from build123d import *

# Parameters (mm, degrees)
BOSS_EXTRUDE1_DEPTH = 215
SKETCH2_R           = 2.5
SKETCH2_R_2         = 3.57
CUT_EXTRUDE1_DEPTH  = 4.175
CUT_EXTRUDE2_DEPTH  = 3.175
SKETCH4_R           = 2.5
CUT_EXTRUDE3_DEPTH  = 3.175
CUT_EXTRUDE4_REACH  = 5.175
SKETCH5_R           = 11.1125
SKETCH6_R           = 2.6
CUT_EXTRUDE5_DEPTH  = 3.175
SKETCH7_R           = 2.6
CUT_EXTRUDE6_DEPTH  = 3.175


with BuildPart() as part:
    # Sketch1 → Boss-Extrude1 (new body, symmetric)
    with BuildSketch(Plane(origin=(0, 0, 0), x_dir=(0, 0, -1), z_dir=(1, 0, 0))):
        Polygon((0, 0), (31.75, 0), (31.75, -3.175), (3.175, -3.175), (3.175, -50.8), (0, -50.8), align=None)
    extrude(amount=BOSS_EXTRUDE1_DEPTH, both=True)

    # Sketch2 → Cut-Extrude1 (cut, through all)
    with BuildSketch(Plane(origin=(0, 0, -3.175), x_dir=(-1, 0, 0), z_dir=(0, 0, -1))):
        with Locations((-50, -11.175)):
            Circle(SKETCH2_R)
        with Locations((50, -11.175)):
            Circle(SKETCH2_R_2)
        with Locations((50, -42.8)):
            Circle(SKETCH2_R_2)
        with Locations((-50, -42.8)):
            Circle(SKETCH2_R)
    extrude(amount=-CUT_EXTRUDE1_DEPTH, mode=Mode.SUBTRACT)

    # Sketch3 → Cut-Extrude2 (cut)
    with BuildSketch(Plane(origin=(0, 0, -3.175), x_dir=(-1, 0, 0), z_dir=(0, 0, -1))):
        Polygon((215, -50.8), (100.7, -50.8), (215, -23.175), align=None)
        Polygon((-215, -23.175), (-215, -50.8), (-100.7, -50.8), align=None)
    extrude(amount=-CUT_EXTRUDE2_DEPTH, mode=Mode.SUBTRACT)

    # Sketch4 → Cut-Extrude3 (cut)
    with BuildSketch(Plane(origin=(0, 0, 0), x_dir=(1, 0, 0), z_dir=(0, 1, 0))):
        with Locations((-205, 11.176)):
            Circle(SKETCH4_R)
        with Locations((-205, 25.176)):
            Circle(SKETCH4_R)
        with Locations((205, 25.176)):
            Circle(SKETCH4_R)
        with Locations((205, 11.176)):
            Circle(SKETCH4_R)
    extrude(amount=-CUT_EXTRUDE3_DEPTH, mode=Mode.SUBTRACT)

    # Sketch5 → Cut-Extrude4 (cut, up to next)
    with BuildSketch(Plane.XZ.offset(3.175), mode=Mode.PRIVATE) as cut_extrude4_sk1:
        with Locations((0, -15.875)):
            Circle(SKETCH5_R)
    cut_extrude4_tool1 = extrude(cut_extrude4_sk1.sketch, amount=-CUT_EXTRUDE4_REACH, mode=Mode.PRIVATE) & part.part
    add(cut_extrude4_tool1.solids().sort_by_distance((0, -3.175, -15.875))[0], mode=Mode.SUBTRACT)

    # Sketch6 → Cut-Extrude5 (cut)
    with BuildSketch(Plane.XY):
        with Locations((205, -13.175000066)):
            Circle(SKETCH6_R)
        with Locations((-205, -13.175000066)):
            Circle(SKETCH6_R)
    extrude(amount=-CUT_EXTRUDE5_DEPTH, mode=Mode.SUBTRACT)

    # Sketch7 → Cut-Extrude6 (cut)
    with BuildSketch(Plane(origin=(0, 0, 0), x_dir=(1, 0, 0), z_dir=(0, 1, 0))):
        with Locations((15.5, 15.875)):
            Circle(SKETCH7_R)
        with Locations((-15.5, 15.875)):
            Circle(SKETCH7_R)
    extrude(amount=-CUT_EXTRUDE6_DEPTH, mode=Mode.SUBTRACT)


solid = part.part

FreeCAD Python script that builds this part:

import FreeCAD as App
import Part
import Sketcher
Q = App.Units.Quantity

doc = App.newDocument("Part")
params = doc.addObject("Spreadsheet::Sheet", "Params")
for row, (alias, value) in enumerate([
    ("sketch1_width", "2 in"),
    ("sketch1_height", "1.25 in"),
    ("sketch1_width2", "1.875 in"),
    ("pad1_length", "430 mm"),
    ("sketch3_width", "4.5 in"),
    ("pocket2_length", "0.125 in"),
    ("pocket3_length", "0.125 in"),
    ("sketch5_diameter", "0.875 in"),
    ("pocket5_length", "0.125 in"),
    ("pocket6_length", "0.125 in"),
], start=1):
    params.set(f"A{row}", alias)
    params.set(f"B{row}", "=" + value)
    params.setAlias(f"B{row}", alias)

body = doc.addObject("PartDesign::Body", "Body")

sketch1 = body.newObject("Sketcher::SketchObject", "Sketch")
sketch1.AttachmentSupport = (doc.getObject("YZ_Plane"), [""])
sketch1.MapMode = "FlatFace"
sketch1.addGeometry([
    Part.LineSegment(App.Vector(0, -31.8, 0), App.Vector(0, 0, 0)),
    Part.LineSegment(App.Vector(0, 0, 0), App.Vector(-50.8, 0, 0)),
    Part.LineSegment(App.Vector(-50.8, 0, 0), App.Vector(-50.8, -3.2, 0)),
    Part.LineSegment(App.Vector(-50.8, -3.2, 0), App.Vector(-3.2, -3.2, 0)),
    Part.LineSegment(App.Vector(-3.2, -3.2, 0), App.Vector(-3.2, -31.8, 0)),
    Part.LineSegment(App.Vector(-3.2, -31.8, 0), App.Vector(0, -31.8, 0)),
], False)
sketch1.addConstraint([
    Sketcher.Constraint("Coincident", 0, 2, 1, 1),
    Sketcher.Constraint("Coincident", 1, 2, 2, 1),
    Sketcher.Constraint("Coincident", 2, 2, 3, 1),
    Sketcher.Constraint("Coincident", 3, 2, 4, 1),
    Sketcher.Constraint("Coincident", 4, 2, 5, 1),
    Sketcher.Constraint("Coincident", 5, 2, 0, 1),
    Sketcher.Constraint("Vertical", 0),
    Sketcher.Constraint("Horizontal", 1),
    Sketcher.Constraint("Vertical", 2),
    Sketcher.Constraint("Horizontal", 3),
    Sketcher.Constraint("Vertical", 4),
    Sketcher.Constraint("Horizontal", 5),
    Sketcher.Constraint("Coincident", 0, 2, -1, 1),
    Sketcher.Constraint("Equal", 5, 2),
    Sketcher.Constraint("DistanceX", 1, 2, 1, 1, Q("2 in")),
    Sketcher.Constraint("DistanceY", 0, 1, 0, 2, Q("1.25 in")),
    Sketcher.Constraint("DistanceX", 3, 1, 3, 2, Q("1.875 in")),
])
sketch1.setExpression("Constraints[14]", "Params.sketch1_width")
sketch1.setExpression("Constraints[15]", "Params.sketch1_height")
sketch1.setExpression("Constraints[16]", "Params.sketch1_width2")
pad1 = body.newObject("PartDesign::Pad", "Pad")
pad1.Profile = sketch1
pad1.setExpression("Length", "Params.pad1_length")
pad1.Midplane = True

sketch2 = body.newObject("Sketcher::SketchObject", "Sketch001")
sketch2.AttachmentSupport = (doc.getObject("XY_Plane"), [""])
sketch2.MapMode = "FlatFace"
sketch2.AttachmentOffset = App.Placement(App.Vector(0, 0, -0.125 * 25.4), App.Rotation())
sketch2.addGeometry([
    Part.Circle(App.Vector(50, -11.2, 0), App.Vector(0, 0, 1), 2.5),
    Part.Circle(App.Vector(-50, -11.2, 0), App.Vector(0, 0, 1), 3.6),
    Part.Circle(App.Vector(-50, -42.8, 0), App.Vector(0, 0, 1), 3.6),
    Part.Circle(App.Vector(50, -42.8, 0), App.Vector(0, 0, 1), 2.5),
], False)
sketch2.addConstraint([
    Sketcher.Constraint("Equal", 1, 2),
    Sketcher.Constraint("Equal", 0, 3),
    Sketcher.Constraint("Symmetric", 0, 3, 1, 3, -2),
    Sketcher.Constraint("Symmetric", 2, 3, 3, 3, -2),
    Sketcher.Constraint("Vertical", 1, 3, 2, 3),
    Sketcher.Constraint("Diameter", 0, Q("5 mm")),
    Sketcher.Constraint("Diameter", 1, Q("7.14 mm")),
    Sketcher.Constraint("DistanceX", -1, 1, 0, 3, Q("50 mm")),
    Sketcher.Constraint("DistanceY", 0, 3, -1, 1, Q("11.175 mm")),
    Sketcher.Constraint("DistanceY", 2, 3, -1, 1, Q("42.8 mm")),
])
pocket1 = body.newObject("PartDesign::Pocket", "Pocket")
pocket1.Profile = sketch2
pocket1.Type = "ThroughAll"
pocket1.Reversed = True

sketch3 = body.newObject("Sketcher::SketchObject", "Sketch002")
sketch3.AttachmentSupport = (doc.getObject("XY_Plane"), [""])
sketch3.MapMode = "FlatFace"
sketch3.AttachmentOffset = App.Placement(App.Vector(0, 0, -0.125 * 25.4), App.Rotation())
sketch3.addGeometry([
    Part.LineSegment(App.Vector(-101, -51, 0), App.Vector(-215, -51, 0)),
    Part.LineSegment(App.Vector(-215, -51, 0), App.Vector(-215, -23, 0)),
    Part.LineSegment(App.Vector(-215, -23, 0), App.Vector(-101, -51, 0)),
    Part.LineSegment(App.Vector(215, -23, 0), App.Vector(215, -51, 0)),
    Part.LineSegment(App.Vector(215, -51, 0), App.Vector(101, -51, 0)),
    Part.LineSegment(App.Vector(101, -51, 0), App.Vector(215, -23, 0)),
], False)
sketch3.addConstraint([
    Sketcher.Constraint("Coincident", 0, 2, 1, 1),
    Sketcher.Constraint("Coincident", 1, 2, 2, 1),
    Sketcher.Constraint("Coincident", 2, 2, 0, 1),
    Sketcher.Constraint("Coincident", 3, 2, 4, 1),
    Sketcher.Constraint("Coincident", 4, 2, 5, 1),
    Sketcher.Constraint("Coincident", 5, 2, 3, 1),
    Sketcher.Constraint("Horizontal", 0),
    Sketcher.Constraint("Vertical", 1),
    Sketcher.Constraint("Vertical", 3),
    Sketcher.Constraint("Horizontal", 4),
    Sketcher.Constraint("Symmetric", 0, 2, 3, 2, -2),
    Sketcher.Constraint("Horizontal", 1, 2, 5, 2),
    Sketcher.Constraint("Equal", 0, 4),
    Sketcher.Constraint("DistanceX", 0, 2, 0, 1, Q("4.5 in")),
    Sketcher.Constraint("DistanceY", 0, 2, -1, 1, Q("2 in")),
    Sketcher.Constraint("DistanceY", 1, 1, 1, 2, Q("27.625 mm")),
    Sketcher.Constraint("DistanceX", 0, 2, -1, 1, Q("215 mm")),
])
sketch3.setExpression("Constraints[13]", "Params.sketch3_width")
pocket2 = body.newObject("PartDesign::Pocket", "Pocket001")
pocket2.Profile = sketch3
pocket2.setExpression("Length", "Params.pocket2_length")
pocket2.Reversed = True

sketch4 = body.newObject("Sketcher::SketchObject", "Sketch003")
sketch4.AttachmentSupport = (doc.getObject("XZ_Plane"), [""])
sketch4.MapMode = "FlatFace"
sketch4.addGeometry([
    Part.Circle(App.Vector(-205, -11.2, 0), App.Vector(0, 0, 1), 2.5),
    Part.Circle(App.Vector(-205, -25.2, 0), App.Vector(0, 0, 1), 2.5),
    Part.Circle(App.Vector(205, -25.2, 0), App.Vector(0, 0, 1), 2.5),
    Part.Circle(App.Vector(205, -11.2, 0), App.Vector(0, 0, 1), 2.5),
], False)
sketch4.addConstraint([
    Sketcher.Constraint("Equal", 0, 1),
    Sketcher.Constraint("Equal", 1, 2),
    Sketcher.Constraint("Equal", 2, 3),
    Sketcher.Constraint("Symmetric", 1, 3, 2, 3, -2),
    Sketcher.Constraint("Symmetric", 0, 3, 3, 3, -2),
    Sketcher.Constraint("Vertical", 0, 3, 1, 3),
    Sketcher.Constraint("Diameter", 0, Q("5 mm")),
    Sketcher.Constraint("DistanceY", 0, 3, -1, 1, Q("0.44 in")),
    Sketcher.Constraint("DistanceX", 0, 3, -1, 1, Q("205 mm")),
    Sketcher.Constraint("DistanceY", 1, 3, -1, 1, Q("25.176 mm")),
])
pocket3 = body.newObject("PartDesign::Pocket", "Pocket002")
pocket3.Profile = sketch4
pocket3.setExpression("Length", "Params.pocket3_length")
pocket3.Reversed = True

sketch5 = body.newObject("Sketcher::SketchObject", "Sketch004")
sketch5.AttachmentSupport = (doc.getObject("XZ_Plane"), [""])
sketch5.MapMode = "FlatFace"
sketch5.AttachmentOffset = App.Placement(App.Vector(0, 0, 0.125 * 25.4), App.Rotation())
sketch5.addGeometry(Part.Circle(App.Vector(0, -16, 0), App.Vector(0, 0, 1), 11), False)
sketch5.addConstraint([
    Sketcher.Constraint("PointOnObject", 0, 3, -2),
    Sketcher.Constraint("Diameter", 0, Q("0.875 in")),
    Sketcher.Constraint("DistanceY", 0, 3, -1, 1, Q("0.625 in")),
])
sketch5.setExpression("Constraints[1]", "Params.sketch5_diameter")
pocket4 = body.newObject("PartDesign::Pocket", "Pocket003")
pocket4.Profile = sketch5
pocket4.Type = "UpToFirst"

sketch6 = body.newObject("Sketcher::SketchObject", "Sketch005")
sketch6.AttachmentSupport = (doc.getObject("XY_Plane"), [""])
sketch6.MapMode = "FlatFace"
sketch6.addGeometry([
    Part.Circle(App.Vector(205, -13.2, 0), App.Vector(0, 0, 1), 2.6),
    Part.Circle(App.Vector(-205, -13.2, 0), App.Vector(0, 0, 1), 2.6),
], False)
sketch6.addConstraint([
    Sketcher.Constraint("Equal", 0, 1),
    Sketcher.Constraint("Symmetric", 0, 3, 1, 3, -2),
    Sketcher.Constraint("Diameter", 0, Q("5.2 mm")),
    Sketcher.Constraint("DistanceX", -1, 1, 0, 3, Q("205 mm")),
    Sketcher.Constraint("DistanceY", 0, 3, -1, 1, Q("13.175 mm")),
])
pocket5 = body.newObject("PartDesign::Pocket", "Pocket004")
pocket5.Profile = sketch6
pocket5.setExpression("Length", "Params.pocket5_length")

sketch7 = body.newObject("Sketcher::SketchObject", "Sketch006")
sketch7.AttachmentSupport = (doc.getObject("XZ_Plane"), [""])
sketch7.MapMode = "FlatFace"
sketch7.addGeometry([
    Part.Circle(App.Vector(15.5, -15.9, 0), App.Vector(0, 0, 1), 2.6),
    Part.Circle(App.Vector(-15.5, -15.9, 0), App.Vector(0, 0, 1), 2.6),
], False)
sketch7.addConstraint([
    Sketcher.Constraint("Equal", 0, 1),
    Sketcher.Constraint("Symmetric", 0, 3, 1, 3, -2),
    Sketcher.Constraint("Diameter", 0, Q("5.2 mm")),
    Sketcher.Constraint("DistanceY", 0, 3, -1, 1, Q("0.625 in")),
    Sketcher.Constraint("DistanceX", -1, 1, 0, 3, Q("15.5 mm")),
])
pocket6 = body.newObject("PartDesign::Pocket", "Pocket005")
pocket6.Profile = sketch7
pocket6.setExpression("Length", "Params.pocket6_length")
pocket6.Reversed = True

doc.recompute()
